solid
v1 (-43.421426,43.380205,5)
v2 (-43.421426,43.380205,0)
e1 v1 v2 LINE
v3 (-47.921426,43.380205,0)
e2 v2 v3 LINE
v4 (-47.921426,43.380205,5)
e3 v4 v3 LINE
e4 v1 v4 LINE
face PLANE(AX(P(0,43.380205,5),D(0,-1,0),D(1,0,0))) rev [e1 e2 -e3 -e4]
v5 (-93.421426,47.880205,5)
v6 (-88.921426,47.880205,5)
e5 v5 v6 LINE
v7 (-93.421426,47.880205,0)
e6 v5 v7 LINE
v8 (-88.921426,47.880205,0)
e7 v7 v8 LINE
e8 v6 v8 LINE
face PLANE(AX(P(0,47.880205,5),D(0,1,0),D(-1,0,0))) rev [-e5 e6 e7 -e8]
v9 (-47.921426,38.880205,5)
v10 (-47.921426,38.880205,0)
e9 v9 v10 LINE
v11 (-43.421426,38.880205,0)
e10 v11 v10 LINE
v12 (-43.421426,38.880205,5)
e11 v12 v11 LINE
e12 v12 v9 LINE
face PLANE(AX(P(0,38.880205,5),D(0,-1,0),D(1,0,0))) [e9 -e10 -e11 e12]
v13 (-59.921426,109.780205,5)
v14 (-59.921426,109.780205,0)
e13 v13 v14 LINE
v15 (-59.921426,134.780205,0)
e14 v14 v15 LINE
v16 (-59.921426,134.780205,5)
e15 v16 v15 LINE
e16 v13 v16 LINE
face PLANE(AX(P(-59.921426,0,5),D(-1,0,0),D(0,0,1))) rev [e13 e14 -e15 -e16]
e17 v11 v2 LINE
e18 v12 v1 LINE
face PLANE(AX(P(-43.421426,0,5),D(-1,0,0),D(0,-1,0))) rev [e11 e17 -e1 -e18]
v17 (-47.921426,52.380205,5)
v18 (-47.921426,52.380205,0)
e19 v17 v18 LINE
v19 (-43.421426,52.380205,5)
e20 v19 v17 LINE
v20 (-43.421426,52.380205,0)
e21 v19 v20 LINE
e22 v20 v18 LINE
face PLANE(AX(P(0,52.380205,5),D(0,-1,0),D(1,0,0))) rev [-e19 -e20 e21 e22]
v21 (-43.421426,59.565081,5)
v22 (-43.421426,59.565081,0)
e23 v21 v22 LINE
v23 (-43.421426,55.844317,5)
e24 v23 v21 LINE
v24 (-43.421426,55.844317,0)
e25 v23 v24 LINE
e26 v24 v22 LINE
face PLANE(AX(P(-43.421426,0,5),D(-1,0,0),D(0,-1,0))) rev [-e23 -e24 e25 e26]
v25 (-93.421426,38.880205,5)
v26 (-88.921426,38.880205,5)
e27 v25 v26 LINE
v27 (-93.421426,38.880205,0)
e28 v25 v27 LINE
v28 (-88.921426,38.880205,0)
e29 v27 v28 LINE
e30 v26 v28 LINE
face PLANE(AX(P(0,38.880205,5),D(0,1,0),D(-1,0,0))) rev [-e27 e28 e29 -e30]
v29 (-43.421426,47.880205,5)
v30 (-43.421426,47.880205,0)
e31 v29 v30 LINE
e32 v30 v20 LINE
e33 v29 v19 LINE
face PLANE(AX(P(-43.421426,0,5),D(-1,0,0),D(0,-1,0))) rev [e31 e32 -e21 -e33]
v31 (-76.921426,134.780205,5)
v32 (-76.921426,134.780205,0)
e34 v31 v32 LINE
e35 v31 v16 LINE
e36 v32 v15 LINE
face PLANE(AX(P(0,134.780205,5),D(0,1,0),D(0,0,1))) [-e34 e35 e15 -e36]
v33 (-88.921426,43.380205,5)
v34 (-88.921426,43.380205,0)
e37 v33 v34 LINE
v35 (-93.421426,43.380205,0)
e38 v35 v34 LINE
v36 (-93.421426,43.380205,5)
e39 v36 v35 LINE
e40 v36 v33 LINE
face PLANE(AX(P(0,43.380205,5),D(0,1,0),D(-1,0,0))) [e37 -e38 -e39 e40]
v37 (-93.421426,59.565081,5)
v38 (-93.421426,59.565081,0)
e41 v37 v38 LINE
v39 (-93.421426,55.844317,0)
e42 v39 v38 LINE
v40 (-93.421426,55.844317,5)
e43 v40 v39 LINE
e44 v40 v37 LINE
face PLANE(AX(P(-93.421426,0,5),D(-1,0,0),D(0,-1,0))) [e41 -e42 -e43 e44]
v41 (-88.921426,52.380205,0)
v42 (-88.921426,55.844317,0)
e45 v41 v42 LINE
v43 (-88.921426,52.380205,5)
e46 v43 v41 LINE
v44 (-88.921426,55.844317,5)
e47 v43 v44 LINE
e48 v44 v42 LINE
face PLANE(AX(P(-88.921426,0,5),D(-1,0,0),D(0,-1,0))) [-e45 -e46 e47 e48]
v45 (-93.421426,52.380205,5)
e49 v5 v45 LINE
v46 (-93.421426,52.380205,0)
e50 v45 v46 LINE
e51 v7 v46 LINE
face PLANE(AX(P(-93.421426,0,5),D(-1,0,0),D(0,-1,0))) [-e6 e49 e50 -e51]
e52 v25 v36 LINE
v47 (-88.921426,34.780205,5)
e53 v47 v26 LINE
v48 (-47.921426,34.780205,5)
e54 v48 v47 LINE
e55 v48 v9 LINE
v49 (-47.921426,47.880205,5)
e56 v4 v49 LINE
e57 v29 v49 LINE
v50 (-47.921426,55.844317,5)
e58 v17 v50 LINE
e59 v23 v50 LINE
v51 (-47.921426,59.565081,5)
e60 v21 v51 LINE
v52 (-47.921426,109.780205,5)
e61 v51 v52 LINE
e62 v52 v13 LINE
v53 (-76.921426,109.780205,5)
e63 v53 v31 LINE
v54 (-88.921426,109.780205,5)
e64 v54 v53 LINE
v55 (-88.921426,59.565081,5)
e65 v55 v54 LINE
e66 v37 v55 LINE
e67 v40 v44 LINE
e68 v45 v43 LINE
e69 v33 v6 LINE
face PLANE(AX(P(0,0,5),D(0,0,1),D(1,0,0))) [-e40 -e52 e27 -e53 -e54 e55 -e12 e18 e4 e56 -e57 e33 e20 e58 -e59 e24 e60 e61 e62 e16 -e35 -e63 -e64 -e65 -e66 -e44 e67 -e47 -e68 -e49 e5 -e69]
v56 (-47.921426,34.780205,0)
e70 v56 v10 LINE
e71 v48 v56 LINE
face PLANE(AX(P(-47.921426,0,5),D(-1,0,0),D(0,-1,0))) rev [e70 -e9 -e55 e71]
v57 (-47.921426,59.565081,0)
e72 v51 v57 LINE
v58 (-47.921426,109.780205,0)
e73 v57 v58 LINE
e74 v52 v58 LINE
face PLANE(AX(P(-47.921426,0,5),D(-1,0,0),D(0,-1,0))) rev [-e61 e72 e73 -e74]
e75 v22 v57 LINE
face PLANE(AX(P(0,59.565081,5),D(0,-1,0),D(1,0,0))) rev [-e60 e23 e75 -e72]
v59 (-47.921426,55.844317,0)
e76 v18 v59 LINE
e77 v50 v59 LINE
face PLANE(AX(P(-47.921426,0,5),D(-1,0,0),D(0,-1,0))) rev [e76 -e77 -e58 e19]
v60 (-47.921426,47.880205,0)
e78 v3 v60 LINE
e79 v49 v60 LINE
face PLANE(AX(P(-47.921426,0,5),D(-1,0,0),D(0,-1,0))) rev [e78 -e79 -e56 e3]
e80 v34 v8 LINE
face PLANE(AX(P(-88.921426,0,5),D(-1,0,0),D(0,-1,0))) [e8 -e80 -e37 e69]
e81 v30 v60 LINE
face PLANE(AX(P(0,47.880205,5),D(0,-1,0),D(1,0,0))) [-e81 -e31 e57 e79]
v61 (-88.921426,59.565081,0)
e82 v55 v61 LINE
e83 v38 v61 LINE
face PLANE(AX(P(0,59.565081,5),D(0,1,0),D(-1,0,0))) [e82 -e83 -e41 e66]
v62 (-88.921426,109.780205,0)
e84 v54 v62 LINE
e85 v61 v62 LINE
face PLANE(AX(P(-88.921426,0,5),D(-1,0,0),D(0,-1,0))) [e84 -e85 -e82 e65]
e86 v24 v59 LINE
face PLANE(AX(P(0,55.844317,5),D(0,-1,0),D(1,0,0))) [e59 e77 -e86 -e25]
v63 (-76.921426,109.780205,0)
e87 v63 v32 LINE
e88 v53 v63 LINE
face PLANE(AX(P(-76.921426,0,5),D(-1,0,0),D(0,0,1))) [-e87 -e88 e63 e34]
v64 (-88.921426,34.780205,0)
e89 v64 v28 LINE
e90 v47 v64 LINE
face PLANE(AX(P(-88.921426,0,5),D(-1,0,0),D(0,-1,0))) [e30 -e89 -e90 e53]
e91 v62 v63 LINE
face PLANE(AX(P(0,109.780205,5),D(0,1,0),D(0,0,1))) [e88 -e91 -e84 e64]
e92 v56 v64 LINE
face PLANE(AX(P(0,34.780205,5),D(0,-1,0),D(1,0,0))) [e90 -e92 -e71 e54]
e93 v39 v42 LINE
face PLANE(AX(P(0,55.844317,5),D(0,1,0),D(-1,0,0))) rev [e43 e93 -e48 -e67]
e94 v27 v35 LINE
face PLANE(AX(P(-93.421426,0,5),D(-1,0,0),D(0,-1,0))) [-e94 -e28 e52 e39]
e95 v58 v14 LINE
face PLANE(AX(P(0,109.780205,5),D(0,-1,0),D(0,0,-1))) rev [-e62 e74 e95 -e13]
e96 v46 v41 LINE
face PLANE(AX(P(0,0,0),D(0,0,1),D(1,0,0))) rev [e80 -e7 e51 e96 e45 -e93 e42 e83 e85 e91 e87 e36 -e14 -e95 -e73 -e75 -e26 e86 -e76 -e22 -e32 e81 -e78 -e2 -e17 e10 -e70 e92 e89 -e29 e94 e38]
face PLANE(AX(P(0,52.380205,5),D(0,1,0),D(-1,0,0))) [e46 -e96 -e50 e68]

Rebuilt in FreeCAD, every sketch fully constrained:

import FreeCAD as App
import Part
import Sketcher

V = App.Vector


def add_polygon(sketch, points):
    """Adds a closed chain of lines whose ends are joined by coincident constraints."""
    first, n = sketch.GeometryCount, len(points)
    for a, b in zip(points, points[1:] + points[:1]):
        sketch.addGeometry(Part.LineSegment(App.Vector(*a, 0), App.Vector(*b, 0)), False)
    for i in range(n):
        sketch.addConstraint(Sketcher.Constraint("Coincident", first + i, 2, first + (i + 1) % n, 1))

doc = App.newDocument("Part")
body = doc.addObject("PartDesign::Body", "Body")

sketch1 = doc.addObject("Sketcher::SketchObject", "Sketch")
body.addObject(sketch1)
sketch1.AttachmentSupport = (doc.XY_Plane, [""])
sketch1.MapMode = "FlatFace"
add_polygon(sketch1, [(-47.921426, 34.780205), (-47.921426, 38.880205), (-43.421426, 38.880205), (-43.421426, 43.380205), (-47.921426, 43.380205), (-47.921426, 47.880205), (-43.421426, 47.880205), (-43.421426, 52.380205), (-47.921426, 52.380205), (-47.921426, 55.844317), (-43.421426, 55.844317), (-43.421426, 59.565081), (-47.921426, 59.565081), (-47.921426, 109.780205), (-59.921426, 109.780205), (-59.921426, 134.780205), (-76.921426, 134.780205), (-76.921426, 109.780205), (-88.921426, 109.780205), (-88.921426, 59.565081), (-93.421426, 59.565081), (-93.421426, 55.844317), (-88.921426, 55.844317), (-88.921426, 52.380205), (-93.421426, 52.380205), (-93.421426, 47.880205), (-88.921426, 47.880205), (-88.921426, 43.380205), (-93.421426, 43.380205), (-93.421426, 38.880205), (-88.921426, 38.880205), (-88.921426, 34.780205)])
sketch1.addConstraint([
    Sketcher.Constraint("Vertical", 0),
    Sketcher.Constraint("Horizontal", 1),
    Sketcher.Constraint("Vertical", 2),
    Sketcher.Constraint("Horizontal", 3),
    Sketcher.Constraint("Vertical", 4),
    Sketcher.Constraint("Horizontal", 5),
    Sketcher.Constraint("Vertical", 6),
    Sketcher.Constraint("Horizontal", 7),
    Sketcher.Constraint("Vertical", 8),
    Sketcher.Constraint("Horizontal", 9),
    Sketcher.Constraint("Vertical", 10),
    Sketcher.Constraint("Horizontal", 11),
    Sketcher.Constraint("Vertical", 12),
    Sketcher.Constraint("Horizontal", 13),
    Sketcher.Constraint("Vertical", 14),
    Sketcher.Constraint("Horizontal", 15),
    Sketcher.Constraint("Vertical", 16),
    Sketcher.Constraint("Horizontal", 17),
    Sketcher.Constraint("Vertical", 18),
    Sketcher.Constraint("Horizontal", 19),
    Sketcher.Constraint("Vertical", 20),
    Sketcher.Constraint("Horizontal", 21),
    Sketcher.Constraint("Vertical", 22),
    Sketcher.Constraint("Horizontal", 23),
    Sketcher.Constraint("Vertical", 24),
    Sketcher.Constraint("Horizontal", 25),
    Sketcher.Constraint("Vertical", 26),
    Sketcher.Constraint("Horizontal", 27),
    Sketcher.Constraint("Vertical", 28),
    Sketcher.Constraint("Horizontal", 29),
    Sketcher.Constraint("Vertical", 30),
    Sketcher.Constraint("Horizontal", 31),
    Sketcher.Constraint("Horizontal", 13, 2, 16, 2),
    Sketcher.Constraint("Horizontal", 11, 2, 18, 2),
    Sketcher.Constraint("Horizontal", 9, 2, 20, 2),
    Sketcher.Constraint("Horizontal", 7, 2, 22, 2),
    Sketcher.Constraint("Horizontal", 5, 2, 24, 2),
    Sketcher.Constraint("Horizontal", 3, 2, 26, 2),
    Sketcher.Constraint("Horizontal", 1, 2, 28, 2),
    Sketcher.Constraint("Vertical", 0, 2, 3, 2),
    Sketcher.Constraint("Vertical", 2, 2, 5, 2),
    Sketcher.Constraint("Vertical", 4, 2, 7, 2),
    Sketcher.Constraint("Vertical", 6, 2, 9, 2),
    Sketcher.Constraint("Vertical", 8, 2, 11, 2),
    Sketcher.Constraint("Vertical", 18, 2, 21, 2),
    Sketcher.Constraint("Vertical", 20, 2, 23, 2),
    Sketcher.Constraint("Vertical", 22, 2, 25, 2),
    Sketcher.Constraint("Vertical", 24, 2, 27, 2),
    Sketcher.Constraint("Vertical", 26, 2, 29, 2),
    Sketcher.Constraint("Equal", 13, 17),
    Sketcher.Constraint("Equal", 11, 19),
    Sketcher.Constraint("Equal", 29, 2),
    Sketcher.Constraint("Equal", 2, 4),
    Sketcher.Constraint("Equal", 4, 6),
    Sketcher.Constraint("DistanceX", 13, 2, 13, 1, 12.0),
    Sketcher.Constraint("DistanceX", 15, 2, 15, 1, 17.0),
    Sketcher.Constraint("DistanceY", 14, 1, 14, 2, 25.0),
    Sketcher.Constraint("DistanceX", 1, 1, 1, 2, 4.5),
    Sketcher.Constraint("DistanceY", 0, 1, 0, 2, 4.1),
    Sketcher.Constraint("DistanceY", 7, 2, 12, 2, 57.4),
    Sketcher.Constraint("DistanceY", 8, 1, 8, 2, 3.464112),
    Sketcher.Constraint("DistanceY", 10, 1, 10, 2, 3.720764),
    Sketcher.Constraint("DistanceY", -1, 1, 10, 2, 59.565081),
    Sketcher.Constraint("DistanceX", 0, 2, -1, 1, 47.921426),
])
pad1 = doc.addObject("PartDesign::Pad", "Pad")
body.addObject(pad1)
pad1.Profile = sketch1
pad1.Length = 5

doc.recompute()
